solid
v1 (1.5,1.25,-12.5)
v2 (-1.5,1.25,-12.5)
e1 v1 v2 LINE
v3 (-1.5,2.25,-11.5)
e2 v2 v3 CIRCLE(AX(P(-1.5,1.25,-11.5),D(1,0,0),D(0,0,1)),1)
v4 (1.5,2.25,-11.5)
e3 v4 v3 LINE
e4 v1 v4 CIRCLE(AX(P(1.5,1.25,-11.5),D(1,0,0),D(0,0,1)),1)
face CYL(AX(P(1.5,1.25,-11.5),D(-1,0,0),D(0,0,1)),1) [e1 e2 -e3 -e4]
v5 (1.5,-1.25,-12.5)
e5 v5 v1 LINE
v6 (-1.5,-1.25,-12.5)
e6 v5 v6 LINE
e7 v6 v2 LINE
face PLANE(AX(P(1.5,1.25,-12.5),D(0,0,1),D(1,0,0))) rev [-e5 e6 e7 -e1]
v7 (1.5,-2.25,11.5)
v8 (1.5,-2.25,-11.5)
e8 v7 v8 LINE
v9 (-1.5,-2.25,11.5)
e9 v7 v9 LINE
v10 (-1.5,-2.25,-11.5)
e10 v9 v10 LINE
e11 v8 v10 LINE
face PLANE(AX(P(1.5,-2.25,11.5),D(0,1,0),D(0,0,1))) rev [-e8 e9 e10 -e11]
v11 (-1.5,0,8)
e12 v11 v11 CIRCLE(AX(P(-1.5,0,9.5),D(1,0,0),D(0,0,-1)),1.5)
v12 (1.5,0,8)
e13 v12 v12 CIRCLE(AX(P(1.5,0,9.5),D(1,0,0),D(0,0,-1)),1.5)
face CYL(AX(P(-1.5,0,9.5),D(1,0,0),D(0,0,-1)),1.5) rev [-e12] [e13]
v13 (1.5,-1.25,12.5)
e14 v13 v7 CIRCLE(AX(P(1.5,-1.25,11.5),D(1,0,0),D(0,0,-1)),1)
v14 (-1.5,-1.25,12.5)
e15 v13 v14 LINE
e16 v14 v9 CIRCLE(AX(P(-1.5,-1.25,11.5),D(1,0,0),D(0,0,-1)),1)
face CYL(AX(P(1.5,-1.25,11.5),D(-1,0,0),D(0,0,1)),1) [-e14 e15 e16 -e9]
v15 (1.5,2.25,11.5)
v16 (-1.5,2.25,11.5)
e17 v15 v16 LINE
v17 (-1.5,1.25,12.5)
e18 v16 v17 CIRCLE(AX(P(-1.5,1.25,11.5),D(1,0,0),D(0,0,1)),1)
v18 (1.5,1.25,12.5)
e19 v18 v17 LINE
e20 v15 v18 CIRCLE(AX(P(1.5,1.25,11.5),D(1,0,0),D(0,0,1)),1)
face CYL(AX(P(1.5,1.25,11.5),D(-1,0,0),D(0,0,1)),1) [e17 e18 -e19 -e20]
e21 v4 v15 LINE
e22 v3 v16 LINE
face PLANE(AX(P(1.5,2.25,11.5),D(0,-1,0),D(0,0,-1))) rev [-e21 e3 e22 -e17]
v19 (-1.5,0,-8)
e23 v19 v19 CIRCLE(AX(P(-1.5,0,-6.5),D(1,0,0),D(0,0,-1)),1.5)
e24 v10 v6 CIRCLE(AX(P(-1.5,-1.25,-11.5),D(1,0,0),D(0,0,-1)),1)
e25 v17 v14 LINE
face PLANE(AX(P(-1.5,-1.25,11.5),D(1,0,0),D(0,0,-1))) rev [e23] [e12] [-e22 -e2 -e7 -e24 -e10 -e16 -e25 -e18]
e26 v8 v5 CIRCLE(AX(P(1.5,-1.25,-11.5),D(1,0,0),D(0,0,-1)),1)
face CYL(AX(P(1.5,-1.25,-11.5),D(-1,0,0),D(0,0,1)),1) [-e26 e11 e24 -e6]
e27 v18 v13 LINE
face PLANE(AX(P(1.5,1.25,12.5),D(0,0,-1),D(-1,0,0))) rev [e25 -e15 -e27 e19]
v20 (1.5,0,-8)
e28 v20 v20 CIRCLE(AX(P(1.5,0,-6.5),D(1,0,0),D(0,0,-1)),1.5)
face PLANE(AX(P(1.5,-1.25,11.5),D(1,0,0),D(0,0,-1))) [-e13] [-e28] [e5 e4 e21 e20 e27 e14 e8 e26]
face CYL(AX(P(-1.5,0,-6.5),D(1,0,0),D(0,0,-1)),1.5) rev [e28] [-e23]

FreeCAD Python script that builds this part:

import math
import FreeCAD as App
import Part
import Sketcher
Q = App.Units.Quantity

doc = App.newDocument("Part")
body = doc.addObject("PartDesign::Body", "Body")

sketch1 = body.newObject("Sketcher::SketchObject", "Sketch")
sketch1.AttachmentSupport = (doc.getObject("YZ_Plane"), [""])
sketch1.MapMode = "FlatFace"
sketch1.addGeometry([
    Part.LineSegment(App.Vector(2.2, -11.5, 0), App.Vector(2.2, 11.5, 0)),
    Part.ArcOfCircle(Part.Circle(App.Vector(1.2, 11.5, 0), App.Vector(0, 0, 1), 1), math.radians(0), math.radians(90)),
    Part.LineSegment(App.Vector(1.2, 12.5, 0), App.Vector(-1.2, 12.5, 0)),
    Part.ArcOfCircle(Part.Circle(App.Vector(-1.2, 11.5, 0), App.Vector(0, 0, 1), 1), math.radians(90), math.radians(180)),
    Part.LineSegment(App.Vector(-2.2, 11.5, 0), App.Vector(-2.2, -11.5, 0)),
    Part.ArcOfCircle(Part.Circle(App.Vector(-1.2, -11.5, 0), App.Vector(0, 0, 1), 1), math.radians(-180), math.radians(-90)),
    Part.LineSegment(App.Vector(-1.2, -12.5, 0), App.Vector(1.2, -12.5, 0)),
    Part.ArcOfCircle(Part.Circle(App.Vector(1.2, -11.5, 0), App.Vector(0, 0, 1), 1), math.radians(-90), math.radians(0)),
], False)
sketch1.addConstraint([
    Sketcher.Constraint("Tangent", 0, 2, 1, 1),
    Sketcher.Constraint("Tangent", 1, 2, 2, 1),
    Sketcher.Constraint("Tangent", 2, 2, 3, 1),
    Sketcher.Constraint("Tangent", 3, 2, 4, 1),
    Sketcher.Constraint("Tangent", 4, 2, 5, 1),
    Sketcher.Constraint("Tangent", 5, 2, 6, 1),
    Sketcher.Constraint("Tangent", 6, 2, 7, 1),
    Sketcher.Constraint("Tangent", 7, 2, 0, 1),
    Sketcher.Constraint("Vertical", 0),
    Sketcher.Constraint("Horizontal", 2),
    Sketcher.Constraint("Vertical", 4),
    Sketcher.Constraint("Horizontal", 6),
    Sketcher.Constraint("Equal", 1, 3),
    Sketcher.Constraint("Equal", 3, 5),
    Sketcher.Constraint("Equal", 5, 7),
    Sketcher.Constraint("Symmetric", 1, 3, 5, 3, -1, 1),
    Sketcher.Constraint("Radius", 1, Q("1 mm")),
    Sketcher.Constraint("DistanceY", 0, 1, 0, 2, Q("23 mm")),
    Sketcher.Constraint("DistanceX", 2, 2, 2, 1, Q("2.5 mm")),
])
pad1 = body.newObject("PartDesign::Pad", "Pad")
pad1.Profile = sketch1
pad1.Length = 3
pad1.Midplane = True

sketch2 = body.newObject("Sketcher::SketchObject", "Sketch001")
sketch2.AttachmentSupport = (doc.getObject("YZ_Plane"), [""])
sketch2.MapMode = "FlatFace"
sketch2.addGeometry([
    Part.Circle(App.Vector(0, 9.5, 0), App.Vector(0, 0, 1), 1.5),
    Part.Circle(App.Vector(0, -6.5, 0), App.Vector(0, 0, 1), 1.5),
], False)
sketch2.addConstraint([
    Sketcher.Constraint("Equal", 0, 1),
    Sketcher.Constraint("PointOnObject", 0, 3, -2),
    Sketcher.Constraint("PointOnObject", 1, 3, -2),
    Sketcher.Constraint("Diameter", 0, Q("3 mm")),
    Sketcher.Constraint("DistanceY", 1, 3, 0, 3, Q("16 mm")),
    Sketcher.Constraint("DistanceY", -1, 1, 0, 3, Q("9.5 mm")),
])
pocket1 = body.newObject("PartDesign::Pocket", "Pocket")
pocket1.Profile = sketch2
pocket1.Type = "ThroughAll"
pocket1.Midplane = True

doc.recompute()
